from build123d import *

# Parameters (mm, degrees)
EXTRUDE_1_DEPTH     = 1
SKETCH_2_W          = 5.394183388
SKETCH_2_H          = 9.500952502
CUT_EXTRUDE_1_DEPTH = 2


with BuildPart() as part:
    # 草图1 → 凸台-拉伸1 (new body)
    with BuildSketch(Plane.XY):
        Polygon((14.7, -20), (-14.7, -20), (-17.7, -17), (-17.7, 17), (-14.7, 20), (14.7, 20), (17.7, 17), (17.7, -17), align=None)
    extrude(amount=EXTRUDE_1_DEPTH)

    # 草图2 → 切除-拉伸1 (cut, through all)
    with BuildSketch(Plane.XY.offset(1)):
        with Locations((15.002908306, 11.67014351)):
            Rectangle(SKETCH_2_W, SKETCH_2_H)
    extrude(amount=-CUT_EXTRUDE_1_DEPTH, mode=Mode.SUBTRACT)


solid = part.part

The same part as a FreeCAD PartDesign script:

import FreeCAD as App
import Part
import Sketcher
from FreeCAD import Vector
Q = App.Units.Quantity

doc = App.newDocument("Part")
body = doc.addObject("PartDesign::Body", "Body")

# Sketch on XY plane
sketch1 = doc.addObject("Sketcher::SketchObject", "Sketch")
body.addObject(sketch1)
sketch1.AttachmentSupport = (doc.XY_Plane, [""])
sketch1.MapMode = "FlatFace"
sketch1.addGeometry([
    Part.LineSegment(Vector(-14.7, -20, 0), Vector(14.7, -20, 0)),  # 0
    Part.LineSegment(Vector(14.7, -20, 0), Vector(17.7, -17, 0)),  # 1
    Part.LineSegment(Vector(17.7, -17, 0), Vector(17.7, 17, 0)),  # 2
    Part.LineSegment(Vector(17.7, 17, 0), Vector(14.7, 20, 0)),  # 3
    Part.LineSegment(Vector(14.7, 20, 0), Vector(-14.7, 20, 0)),  # 4
    Part.LineSegment(Vector(-14.7, 20, 0), Vector(-17.7, 17, 0)),  # 5
    Part.LineSegment(Vector(-17.7, 17, 0), Vector(-17.7, -17, 0)),  # 6
    Part.LineSegment(Vector(-17.7, -17, 0), Vector(-14.7, -20, 0)),  # 7
], False)
sketch1.addConstraint([
    Sketcher.Constraint("Coincident", 0, 2, 1, 1),
    Sketcher.Constraint("Coincident", 1, 2, 2, 1),
    Sketcher.Constraint("Coincident", 2, 2, 3, 1),
    Sketcher.Constraint("Coincident", 3, 2, 4, 1),
    Sketcher.Constraint("Coincident", 4, 2, 5, 1),
    Sketcher.Constraint("Coincident", 5, 2, 6, 1),
    Sketcher.Constraint("Coincident", 6, 2, 7, 1),
    Sketcher.Constraint("Coincident", 7, 2, 0, 1),
    Sketcher.Constraint("Horizontal", 0),
    Sketcher.Constraint("Vertical", 2),
    Sketcher.Constraint("Horizontal", 4),
    Sketcher.Constraint("Vertical", 6),
    Sketcher.Constraint("Symmetric", 0, 2, 4, 2, -1, 1),
    Sketcher.Constraint("Symmetric", 1, 2, 5, 2, -1, 1),
    Sketcher.Constraint("Perpendicular", 1, 3),
    Sketcher.Constraint("Perpendicular", 5, 7),
    Sketcher.Constraint("Horizontal", 2, 2, 5, 2),
    Sketcher.Constraint("Horizontal", 1, 2, 6, 2),
    Sketcher.Constraint("Vertical", 0, 2, 3, 2),
    Sketcher.Constraint("DistanceY", 2, 1, 2, 2, Q("34 mm")),
    Sketcher.Constraint("DistanceX", 0, 1, 0, 2, Q("29.4 mm")),
    Sketcher.Constraint("DistanceY", 0, 2, -1, 1, Q("20 mm")),
])
pad1 = doc.addObject("PartDesign::Pad", "Pad")
body.addObject(pad1)
pad1.Profile = sketch1
pad1.Length = 1

# Sketch on XY plane
sketch2 = doc.addObject("Sketcher::SketchObject", "Sketch001")
body.addObject(sketch2)
sketch2.AttachmentSupport = (doc.XY_Plane, [""])
sketch2.MapMode = "FlatFace"
sketch2.AttachmentOffset = App.Placement(Vector(0, 0, 1), App.Rotation())
sketch2.addGeometry([
    Part.LineSegment(Vector(12, 16, 0), Vector(12, 7, 0)),
    Part.LineSegment(Vector(12, 7, 0), Vector(18, 7, 0)),
    Part.LineSegment(Vector(18, 7, 0), Vector(18, 16, 0)),
    Part.LineSegment(Vector(18, 16, 0), Vector(12, 16, 0)),
], False)
sketch2.addConstraint([
    Sketcher.Constraint("Coincident", 0, 2, 1, 1),
    Sketcher.Constraint("Coincident", 1, 2, 2, 1),
    Sketcher.Constraint("Coincident", 2, 2, 3, 1),
    Sketcher.Constraint("Coincident", 3, 2, 0, 1),
    Sketcher.Constraint("Vertical", 0),
    Sketcher.Constraint("Horizontal", 1),
    Sketcher.Constraint("Vertical", 2),
    Sketcher.Constraint("Horizontal", 3),
    Sketcher.Constraint("DistanceX", -1, 1, 1, 2, Q("17.7 mm")),
    Sketcher.Constraint("DistanceX", 1, 1, 1, 2, Q("5.394183 mm")),
    Sketcher.Constraint("DistanceY", 0, 2, 0, 1, Q("9.500953 mm")),
    Sketcher.Constraint("DistanceY", -1, 1, 2, 2, Q("16.42062 mm")),
])
pocket1 = doc.addObject("PartDesign::Pocket", "Pocket")
body.addObject(pocket1)
pocket1.Profile = sketch2
pocket1.Type = "ThroughAll"

doc.recompute()
